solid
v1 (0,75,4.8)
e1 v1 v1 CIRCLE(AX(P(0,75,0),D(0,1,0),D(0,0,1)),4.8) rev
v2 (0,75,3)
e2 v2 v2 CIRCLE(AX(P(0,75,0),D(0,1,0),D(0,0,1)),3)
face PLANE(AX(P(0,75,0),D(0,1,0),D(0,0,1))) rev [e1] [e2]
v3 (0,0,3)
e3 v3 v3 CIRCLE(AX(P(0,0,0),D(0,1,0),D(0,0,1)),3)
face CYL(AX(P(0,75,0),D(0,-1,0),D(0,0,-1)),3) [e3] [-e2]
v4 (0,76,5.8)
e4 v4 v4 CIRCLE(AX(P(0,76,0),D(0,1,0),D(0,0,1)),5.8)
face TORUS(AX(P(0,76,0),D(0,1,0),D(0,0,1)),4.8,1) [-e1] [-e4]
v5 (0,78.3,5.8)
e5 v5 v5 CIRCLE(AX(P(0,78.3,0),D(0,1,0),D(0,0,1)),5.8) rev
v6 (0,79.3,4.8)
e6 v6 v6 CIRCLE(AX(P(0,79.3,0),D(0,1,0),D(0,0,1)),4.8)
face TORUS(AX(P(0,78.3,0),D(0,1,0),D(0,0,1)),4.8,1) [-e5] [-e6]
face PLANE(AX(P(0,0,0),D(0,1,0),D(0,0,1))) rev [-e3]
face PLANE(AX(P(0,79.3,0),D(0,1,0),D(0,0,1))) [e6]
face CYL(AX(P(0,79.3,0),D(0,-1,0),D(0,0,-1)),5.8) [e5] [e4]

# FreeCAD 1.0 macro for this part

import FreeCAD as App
import Part
import Sketcher
Q = App.Units.Quantity


def edges_at(feature, points):
    """Names of the edges that pass closest to the given points."""
    edges = feature.Shape.Edges
    near = lambda p: min(range(len(edges)), key=lambda i: edges[i].distToShape(Part.Vertex(*p))[0])
    return sorted({f"Edge{near(p) + 1}" for p in points})

doc = App.newDocument("Part")
body = doc.addObject("PartDesign::Body", "Body")

sketch1 = body.newObject("Sketcher::SketchObject", "Sketch")
sketch1.AttachmentSupport = (doc.getObject("XZ_Plane"), [""])
sketch1.MapMode = "FlatFace"
sketch1.addGeometry(Part.Circle(App.Vector(0, 0, 0), App.Vector(0, 0, 1), 3), False)
sketch1.addConstraint(Sketcher.Constraint("Coincident", 0, 3, -1, 1))
sketch1.addConstraint(Sketcher.Constraint("Diameter", 0, Q("6 mm")))
pad1 = body.newObject("PartDesign::Pad", "Pad")
pad1.Profile = sketch1
pad1.Length = 75
pad1.Reversed = True

sketch2 = body.newObject("Sketcher::SketchObject", "Sketch001")
sketch2.AttachmentSupport = (doc.getObject("XZ_Plane"), [""])
sketch2.MapMode = "FlatFace"
sketch2.AttachmentOffset = App.Placement(App.Vector(0, 0, -75), App.Rotation())
sketch2.addGeometry(Part.Circle(App.Vector(0, 0, 0), App.Vector(0, 0, 1), 6), False)
sketch2.addConstraint(Sketcher.Constraint("Coincident", 0, 3, -1, 1))
sketch2.addConstraint(Sketcher.Constraint("Diameter", 0, Q("11.6 mm")))
pad2 = body.newObject("PartDesign::Pad", "Pad001")
pad2.Profile = sketch2
pad2.Length = 4.3
pad2.Reversed = True
doc.recompute()

fillet = body.newObject("PartDesign::Fillet", "Fillet")
fillet.Base = (pad2, edges_at(pad2, [(0, 75, -5.8), (0, 79.3, -5.8)]))
fillet.Radius = 1

doc.recompute()
